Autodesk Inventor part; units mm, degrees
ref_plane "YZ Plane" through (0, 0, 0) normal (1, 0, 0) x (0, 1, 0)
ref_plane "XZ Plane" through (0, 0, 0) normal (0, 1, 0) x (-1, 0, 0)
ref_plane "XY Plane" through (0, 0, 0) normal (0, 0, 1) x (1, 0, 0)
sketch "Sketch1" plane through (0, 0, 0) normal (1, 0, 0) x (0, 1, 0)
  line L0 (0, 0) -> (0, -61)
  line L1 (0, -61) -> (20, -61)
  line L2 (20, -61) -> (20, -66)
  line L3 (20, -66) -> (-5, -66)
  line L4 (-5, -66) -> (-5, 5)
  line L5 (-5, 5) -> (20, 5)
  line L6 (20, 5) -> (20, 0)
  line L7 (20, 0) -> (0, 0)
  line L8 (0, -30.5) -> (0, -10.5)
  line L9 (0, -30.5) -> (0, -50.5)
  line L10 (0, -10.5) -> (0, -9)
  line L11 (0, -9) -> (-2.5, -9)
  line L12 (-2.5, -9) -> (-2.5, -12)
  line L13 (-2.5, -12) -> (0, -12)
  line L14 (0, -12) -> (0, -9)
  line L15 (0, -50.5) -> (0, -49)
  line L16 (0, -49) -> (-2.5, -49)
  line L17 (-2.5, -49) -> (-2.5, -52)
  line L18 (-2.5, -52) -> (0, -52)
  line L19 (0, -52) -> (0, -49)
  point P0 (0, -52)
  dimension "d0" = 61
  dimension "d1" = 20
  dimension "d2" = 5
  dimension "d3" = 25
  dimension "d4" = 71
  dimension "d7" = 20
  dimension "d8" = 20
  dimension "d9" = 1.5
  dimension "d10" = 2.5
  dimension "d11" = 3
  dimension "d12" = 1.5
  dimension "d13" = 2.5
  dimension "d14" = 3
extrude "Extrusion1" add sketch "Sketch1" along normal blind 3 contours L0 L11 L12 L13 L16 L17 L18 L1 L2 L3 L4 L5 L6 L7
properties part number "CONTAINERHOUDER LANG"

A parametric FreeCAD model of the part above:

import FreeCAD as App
import Part
import Sketcher
from FreeCAD import Vector
Q = App.Units.Quantity


def add_polygon(sketch, points):
    """Adds a closed chain of lines whose ends are joined by coincident constraints."""
    first, n = sketch.GeometryCount, len(points)
    for a, b in zip(points, points[1:] + points[:1]):
        sketch.addGeometry(Part.LineSegment(App.Vector(*a, 0), App.Vector(*b, 0)), False)
    for i in range(n):
        sketch.addConstraint(Sketcher.Constraint("Coincident", first + i, 2, first + (i + 1) % n, 1))

doc = App.newDocument("Part")
body = doc.addObject("PartDesign::Body", "Body")

# Sketch on YZ plane
sketch1 = body.newObject("Sketcher::SketchObject", "Sketch")
sketch1.AttachmentSupport = (doc.getObject("YZ_Plane"), [""])
sketch1.MapMode = "FlatFace"
add_polygon(sketch1, [(0, -9), (0, 0), (20, 0), (20, 5), (-5, 5), (-5, -66), (20, -66), (20, -61), (0, -61), (0, -52), (-2.5, -52), (-2.5, -49), (0, -49), (0, -12), (-2.5, -12), (-2.5, -9)])  # lines 0-15
sketch1.addConstraint(Sketcher.Constraint("Vertical", 0))
sketch1.addConstraint(Sketcher.Constraint("Horizontal", 1))
sketch1.addConstraint(Sketcher.Constraint("Vertical", 2))
sketch1.addConstraint(Sketcher.Constraint("Horizontal", 3))
sketch1.addConstraint(Sketcher.Constraint("Vertical", 4))
sketch1.addConstraint(Sketcher.Constraint("Horizontal", 5))
sketch1.addConstraint(Sketcher.Constraint("Vertical", 6))
sketch1.addConstraint(Sketcher.Constraint("Horizontal", 7))
sketch1.addConstraint(Sketcher.Constraint("Vertical", 8))
sketch1.addConstraint(Sketcher.Constraint("Horizontal", 9))
sketch1.addConstraint(Sketcher.Constraint("Vertical", 10))
sketch1.addConstraint(Sketcher.Constraint("Horizontal", 11))
sketch1.addConstraint(Sketcher.Constraint("Vertical", 12))
sketch1.addConstraint(Sketcher.Constraint("Horizontal", 13))
sketch1.addConstraint(Sketcher.Constraint("Vertical", 14))
sketch1.addConstraint(Sketcher.Constraint("Horizontal", 15))
sketch1.addConstraint(Sketcher.Constraint("Coincident", 0, 2, -1, 1))
sketch1.addConstraint(Sketcher.Constraint("PointOnObject", 7, 2, -2))
sketch1.addConstraint(Sketcher.Constraint("PointOnObject", 11, 2, -2))
sketch1.addConstraint(Sketcher.Constraint("Vertical", 2, 2, 5, 2))
sketch1.addConstraint(Sketcher.Constraint("Vertical", 10, 2, 13, 2))
sketch1.addConstraint(Sketcher.Constraint("Equal", 2, 6))
sketch1.addConstraint(Sketcher.Constraint("Equal", 0, 8))
sketch1.addConstraint(Sketcher.Constraint("Equal", 10, 14))
sketch1.addConstraint(Sketcher.Constraint("DistanceX", 1, 1, 1, 2, Q("20 mm")))
sketch1.addConstraint(Sketcher.Constraint("DistanceX", 3, 2, 3, 1, Q("25 mm")))
sketch1.addConstraint(Sketcher.Constraint("DistanceY", 2, 1, 2, 2, Q("5 mm")))
sketch1.addConstraint(Sketcher.Constraint("DistanceY", 4, 2, 4, 1, Q("71 mm")))
sketch1.addConstraint(Sketcher.Constraint("DistanceY", 10, 1, 10, 2, Q("3 mm")))
sketch1.addConstraint(Sketcher.Constraint("DistanceX", 9, 2, 9, 1, Q("2.5 mm")))
sketch1.addConstraint(Sketcher.Constraint("DistanceY", 0, 1, 0, 2, Q("9 mm")))
pad1 = body.newObject("PartDesign::Pad", "Pad")
pad1.Profile = sketch1
pad1.Length = 3

doc.recompute()
